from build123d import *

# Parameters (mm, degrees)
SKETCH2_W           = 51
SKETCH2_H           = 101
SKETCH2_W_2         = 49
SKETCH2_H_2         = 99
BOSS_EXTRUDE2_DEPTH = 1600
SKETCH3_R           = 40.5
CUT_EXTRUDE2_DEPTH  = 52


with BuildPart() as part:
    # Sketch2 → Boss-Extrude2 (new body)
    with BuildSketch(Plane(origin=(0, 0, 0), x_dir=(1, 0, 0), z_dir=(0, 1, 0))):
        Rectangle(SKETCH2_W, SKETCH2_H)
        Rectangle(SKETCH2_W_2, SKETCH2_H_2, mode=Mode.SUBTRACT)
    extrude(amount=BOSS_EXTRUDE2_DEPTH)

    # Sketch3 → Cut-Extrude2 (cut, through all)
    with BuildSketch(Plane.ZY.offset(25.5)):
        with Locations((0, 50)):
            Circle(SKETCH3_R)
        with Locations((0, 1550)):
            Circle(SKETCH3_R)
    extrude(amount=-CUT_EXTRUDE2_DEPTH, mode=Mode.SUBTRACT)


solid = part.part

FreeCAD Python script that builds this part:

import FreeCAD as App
import Part
import Sketcher


def add_polygon(sketch, points):
    """Adds a closed chain of lines whose ends are joined by coincident constraints."""
    first, n = sketch.GeometryCount, len(points)
    for a, b in zip(points, points[1:] + points[:1]):
        sketch.addGeometry(Part.LineSegment(App.Vector(*a, 0), App.Vector(*b, 0)), False)
    for i in range(n):
        sketch.addConstraint(Sketcher.Constraint("Coincident", first + i, 2, first + (i + 1) % n, 1))

doc = App.newDocument("Part")
body = doc.addObject("PartDesign::Body", "Body")

sketch1 = body.newObject("Sketcher::SketchObject", "Sketch")
sketch1.AttachmentSupport = (doc.getObject("XZ_Plane"), [""])
sketch1.MapMode = "FlatFace"
add_polygon(sketch1, [(-26, -50), (-26, 50), (26, 50), (26, -50)])
add_polygon(sketch1, [(24, 50), (-24, 50), (-24, -50), (24, -50)])
sketch1.addConstraint(Sketcher.Constraint("Vertical", 0))
sketch1.addConstraint(Sketcher.Constraint("Horizontal", 1))
sketch1.addConstraint(Sketcher.Constraint("Vertical", 2))
sketch1.addConstraint(Sketcher.Constraint("Horizontal", 3))
sketch1.addConstraint(Sketcher.Constraint("Horizontal", 4))
sketch1.addConstraint(Sketcher.Constraint("Vertical", 5))
sketch1.addConstraint(Sketcher.Constraint("Horizontal", 6))
sketch1.addConstraint(Sketcher.Constraint("Vertical", 7))
sketch1.addConstraint(Sketcher.Constraint("Symmetric", 0, 2, 2, 2, -1, 1))
sketch1.addConstraint(Sketcher.Constraint("Symmetric", 4, 2, 6, 2, -1, 1))
sketch1.addConstraint(Sketcher.Constraint("DistanceX", 1, 1, 1, 2, 51.0))
sketch1.addConstraint(Sketcher.Constraint("DistanceX", 4, 2, 4, 1, 49.0))
sketch1.addConstraint(Sketcher.Constraint("DistanceY", 0, 1, 0, 2, 101.0))
sketch1.addConstraint(Sketcher.Constraint("DistanceY", 5, 2, 5, 1, 99.0))
pad1 = body.newObject("PartDesign::Pad", "Pad")
pad1.Profile = sketch1
pad1.Length = 1600
pad1.Reversed = True

sketch2 = body.newObject("Sketcher::SketchObject", "Sketch001")
sketch2.AttachmentSupport = (doc.getObject("YZ_Plane"), [""])
sketch2.MapMode = "FlatFace"
sketch2.AttachmentOffset = App.Placement(App.Vector(0, 0, -25.5), App.Rotation())
sketch2.addGeometry(Part.Circle(App.Vector(50, 0, 0), App.Vector(0, 0, 1), 40), False)
sketch2.addGeometry(Part.Circle(App.Vector(1550, 0, 0), App.Vector(0, 0, 1), 40), False)
sketch2.addConstraint(Sketcher.Constraint("Equal", 0, 1))
sketch2.addConstraint(Sketcher.Constraint("PointOnObject", 0, 3, -1))
sketch2.addConstraint(Sketcher.Constraint("PointOnObject", 1, 3, -1))
sketch2.addConstraint(Sketcher.Constraint("Diameter", 0, 81.0))
sketch2.addConstraint(Sketcher.Constraint("DistanceX", -1, 1, 0, 3, 50.0))
sketch2.addConstraint(Sketcher.Constraint("DistanceX", -1, 1, 1, 3, 1550.0))
pocket1 = body.newObject("PartDesign::Pocket", "Pocket")
pocket1.Profile = sketch2
pocket1.Type = "ThroughAll"
pocket1.Reversed = True

doc.recompute()
